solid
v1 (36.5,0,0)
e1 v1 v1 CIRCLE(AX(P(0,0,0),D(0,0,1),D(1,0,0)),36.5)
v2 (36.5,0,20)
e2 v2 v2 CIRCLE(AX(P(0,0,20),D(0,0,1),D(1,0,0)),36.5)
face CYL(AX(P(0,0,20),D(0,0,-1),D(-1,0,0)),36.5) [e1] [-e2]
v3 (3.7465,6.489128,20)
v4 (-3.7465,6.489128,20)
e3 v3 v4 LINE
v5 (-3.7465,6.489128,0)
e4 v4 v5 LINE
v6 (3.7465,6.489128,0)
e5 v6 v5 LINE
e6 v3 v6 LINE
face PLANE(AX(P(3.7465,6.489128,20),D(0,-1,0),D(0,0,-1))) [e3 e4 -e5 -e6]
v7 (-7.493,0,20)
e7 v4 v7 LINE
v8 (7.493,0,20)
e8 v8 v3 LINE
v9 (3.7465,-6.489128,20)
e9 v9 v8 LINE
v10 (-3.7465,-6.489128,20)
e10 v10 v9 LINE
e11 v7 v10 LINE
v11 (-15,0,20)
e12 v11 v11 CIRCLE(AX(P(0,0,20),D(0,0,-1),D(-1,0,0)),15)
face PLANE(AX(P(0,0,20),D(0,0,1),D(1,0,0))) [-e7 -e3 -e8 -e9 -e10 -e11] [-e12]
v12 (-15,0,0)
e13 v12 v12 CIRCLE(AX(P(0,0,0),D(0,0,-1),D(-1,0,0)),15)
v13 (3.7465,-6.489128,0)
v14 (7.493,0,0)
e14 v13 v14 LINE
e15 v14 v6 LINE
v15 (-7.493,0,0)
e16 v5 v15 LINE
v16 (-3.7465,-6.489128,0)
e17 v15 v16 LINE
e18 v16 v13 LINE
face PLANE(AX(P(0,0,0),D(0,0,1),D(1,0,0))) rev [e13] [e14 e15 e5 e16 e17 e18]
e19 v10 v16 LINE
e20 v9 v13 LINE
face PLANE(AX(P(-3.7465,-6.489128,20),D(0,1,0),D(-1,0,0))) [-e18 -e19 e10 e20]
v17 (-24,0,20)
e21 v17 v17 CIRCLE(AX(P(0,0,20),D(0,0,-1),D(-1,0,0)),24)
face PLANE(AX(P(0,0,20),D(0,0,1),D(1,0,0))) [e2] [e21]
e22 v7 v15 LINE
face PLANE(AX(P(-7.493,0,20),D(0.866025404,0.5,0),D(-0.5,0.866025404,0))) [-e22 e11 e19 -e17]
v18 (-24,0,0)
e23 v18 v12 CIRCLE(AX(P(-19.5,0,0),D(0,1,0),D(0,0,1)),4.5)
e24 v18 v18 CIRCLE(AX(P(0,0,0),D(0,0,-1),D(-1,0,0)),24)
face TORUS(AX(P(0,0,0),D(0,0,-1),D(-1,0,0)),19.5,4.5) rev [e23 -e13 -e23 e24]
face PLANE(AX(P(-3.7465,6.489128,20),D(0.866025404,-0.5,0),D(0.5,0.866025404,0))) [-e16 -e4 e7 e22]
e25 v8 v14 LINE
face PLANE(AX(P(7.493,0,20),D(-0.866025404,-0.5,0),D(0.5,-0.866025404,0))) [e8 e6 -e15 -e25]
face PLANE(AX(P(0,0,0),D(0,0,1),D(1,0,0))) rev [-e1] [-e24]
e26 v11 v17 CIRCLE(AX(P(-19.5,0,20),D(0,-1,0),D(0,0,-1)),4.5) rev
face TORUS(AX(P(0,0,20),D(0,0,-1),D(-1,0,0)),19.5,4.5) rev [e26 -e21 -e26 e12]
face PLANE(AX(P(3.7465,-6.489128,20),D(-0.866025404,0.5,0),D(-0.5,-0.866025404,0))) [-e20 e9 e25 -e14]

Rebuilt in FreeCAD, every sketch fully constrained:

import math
import FreeCAD as App
import Part
import Sketcher
Q = App.Units.Quantity


def add_polygon(sketch, points):
    """Adds a closed chain of lines whose ends are joined by coincident constraints."""
    first, n = sketch.GeometryCount, len(points)
    for a, b in zip(points, points[1:] + points[:1]):
        sketch.addGeometry(Part.LineSegment(App.Vector(*a, 0), App.Vector(*b, 0)), False)
    for i in range(n):
        sketch.addConstraint(Sketcher.Constraint("Coincident", first + i, 2, first + (i + 1) % n, 1))

doc = App.newDocument("Part")
params = doc.addObject("Spreadsheet::Sheet", "Params")
for row, (alias, value) in enumerate([
    ("sketch1_diameter", "73 mm"),
    ("pad1_length", "20 mm"),
    ("sketch2_radius", "4.5 mm"),
    ("sketch3_diameter", "39 mm"),
], start=1):
    params.set(f"A{row}", alias)
    params.set(f"B{row}", "=" + value)
    params.setAlias(f"B{row}", alias)

body = doc.addObject("PartDesign::Body", "Body")

# Sketch on XY plane
sketch1 = body.newObject("Sketcher::SketchObject", "Sketch")
sketch1.AttachmentSupport = (doc.getObject("XY_Plane"), [""])
sketch1.MapMode = "FlatFace"
sketch1.addGeometry(Part.Circle(App.Vector(0, 0, 0), App.Vector(0, 0, 1), 36.5), False)  # 0
add_polygon(sketch1, [(3.7465, 6.489128), (7.493, 0), (3.7465, -6.489128), (-3.7465, -6.489128), (-7.493, 0), (-3.7465, 6.489128)])  # lines 1-6
sketch1.addConstraint([
    Sketcher.Constraint("Horizontal", 3),
    Sketcher.Constraint("Horizontal", 6),
    Sketcher.Constraint("Coincident", 0, 3, -1, 1),
    Sketcher.Constraint("Symmetric", 1, 2, 4, 2, -1, 1),
    Sketcher.Constraint("Symmetric", 2, 2, 5, 2, -1, 1),
    Sketcher.Constraint("PointOnObject", 1, 2, -1),
    Sketcher.Constraint("Parallel", 1, 4),
    Sketcher.Constraint("Vertical", 3, 2, 5, 2),
    Sketcher.Constraint("Diameter", 0, Q("73 mm")),
    Sketcher.Constraint("Angle", 1, Q("-60 deg")),
    Sketcher.Constraint("DistanceX", 3, 2, 3, 1, Q("7.493 mm")),
    Sketcher.Constraint("Distance", 1, Q("7.493 mm")),
])
sketch1.setExpression("Constraints[14]", "Params.sketch1_diameter")
pad1 = body.newObject("PartDesign::Pad", "Pad")
pad1.Profile = sketch1
pad1.setExpression("Length", "Params.pad1_length")

# Sketch on XZ plane
sketch2 = body.newObject("Sketcher::SketchObject", "Sketch001")
sketch2.AttachmentSupport = (doc.getObject("XZ_Plane"), [""])
sketch2.MapMode = "FlatFace"
sketch2.addGeometry([
    Part.LineSegment(App.Vector(-15, 0, 0), App.Vector(-24, 0, 0)),
    Part.ArcOfCircle(Part.Circle(App.Vector(-19.5, 0, 0), App.Vector(0, 0, 1), 4.5), math.radians(0), math.radians(180)),
], False)
sketch2.addConstraint([
    Sketcher.Constraint("Coincident", 0, 1, 1, 1),
    Sketcher.Constraint("Coincident", 1, 2, 0, 2),
    Sketcher.Constraint("Horizontal", 0),
    Sketcher.Constraint("PointOnObject", 1, 3, -1),
    Sketcher.Constraint("PointOnObject", 0, 1, -1),
    Sketcher.Constraint("Radius", 1, Q("4.5 mm")),
    Sketcher.Constraint("DistanceX", 0, 1, -1, 1, Q("15 mm")),
])
sketch2.setExpression("Constraints[5]", "Params.sketch2_radius")

# Sketch on XY plane
sketch3 = body.newObject("Sketcher::SketchObject", "Sketch002")
sketch3.AttachmentSupport = (doc.getObject("XY_Plane"), [""])
sketch3.MapMode = "FlatFace"
sketch3.addGeometry(Part.Circle(App.Vector(0, 0, 0), App.Vector(0, 0, 1), 19.5), False)
sketch3.addConstraint([
    Sketcher.Constraint("Coincident", 0, 3, -1, 1),
    Sketcher.Constraint("Diameter", 0, Q("39 mm")),
])
sketch3.setExpression("Constraints[1]", "Params.sketch3_diameter")
doc.recompute()

subtractivepipe = body.newObject("PartDesign::SubtractivePipe", "SubtractivePipe")
subtractivepipe.Profile = sketch2
subtractivepipe.Spine = (sketch3, ["Edge1"])
doc.recompute()

datumplane = body.newObject("PartDesign::Plane", "DatumPlane")
datumplane.AttachmentSupport = (doc.getObject("XY_Plane"), [""])
datumplane.MapMode = "FlatFace"
datumplane.AttachmentOffset = App.Placement(App.Vector(0, 0, 10), App.Rotation())
mirrored = body.newObject("PartDesign::Mirrored", "Mirrored")
mirrored.Originals = [subtractivepipe]
mirrored.MirrorPlane = (datumplane, [""])
body.Tip = mirrored

doc.recompute()
